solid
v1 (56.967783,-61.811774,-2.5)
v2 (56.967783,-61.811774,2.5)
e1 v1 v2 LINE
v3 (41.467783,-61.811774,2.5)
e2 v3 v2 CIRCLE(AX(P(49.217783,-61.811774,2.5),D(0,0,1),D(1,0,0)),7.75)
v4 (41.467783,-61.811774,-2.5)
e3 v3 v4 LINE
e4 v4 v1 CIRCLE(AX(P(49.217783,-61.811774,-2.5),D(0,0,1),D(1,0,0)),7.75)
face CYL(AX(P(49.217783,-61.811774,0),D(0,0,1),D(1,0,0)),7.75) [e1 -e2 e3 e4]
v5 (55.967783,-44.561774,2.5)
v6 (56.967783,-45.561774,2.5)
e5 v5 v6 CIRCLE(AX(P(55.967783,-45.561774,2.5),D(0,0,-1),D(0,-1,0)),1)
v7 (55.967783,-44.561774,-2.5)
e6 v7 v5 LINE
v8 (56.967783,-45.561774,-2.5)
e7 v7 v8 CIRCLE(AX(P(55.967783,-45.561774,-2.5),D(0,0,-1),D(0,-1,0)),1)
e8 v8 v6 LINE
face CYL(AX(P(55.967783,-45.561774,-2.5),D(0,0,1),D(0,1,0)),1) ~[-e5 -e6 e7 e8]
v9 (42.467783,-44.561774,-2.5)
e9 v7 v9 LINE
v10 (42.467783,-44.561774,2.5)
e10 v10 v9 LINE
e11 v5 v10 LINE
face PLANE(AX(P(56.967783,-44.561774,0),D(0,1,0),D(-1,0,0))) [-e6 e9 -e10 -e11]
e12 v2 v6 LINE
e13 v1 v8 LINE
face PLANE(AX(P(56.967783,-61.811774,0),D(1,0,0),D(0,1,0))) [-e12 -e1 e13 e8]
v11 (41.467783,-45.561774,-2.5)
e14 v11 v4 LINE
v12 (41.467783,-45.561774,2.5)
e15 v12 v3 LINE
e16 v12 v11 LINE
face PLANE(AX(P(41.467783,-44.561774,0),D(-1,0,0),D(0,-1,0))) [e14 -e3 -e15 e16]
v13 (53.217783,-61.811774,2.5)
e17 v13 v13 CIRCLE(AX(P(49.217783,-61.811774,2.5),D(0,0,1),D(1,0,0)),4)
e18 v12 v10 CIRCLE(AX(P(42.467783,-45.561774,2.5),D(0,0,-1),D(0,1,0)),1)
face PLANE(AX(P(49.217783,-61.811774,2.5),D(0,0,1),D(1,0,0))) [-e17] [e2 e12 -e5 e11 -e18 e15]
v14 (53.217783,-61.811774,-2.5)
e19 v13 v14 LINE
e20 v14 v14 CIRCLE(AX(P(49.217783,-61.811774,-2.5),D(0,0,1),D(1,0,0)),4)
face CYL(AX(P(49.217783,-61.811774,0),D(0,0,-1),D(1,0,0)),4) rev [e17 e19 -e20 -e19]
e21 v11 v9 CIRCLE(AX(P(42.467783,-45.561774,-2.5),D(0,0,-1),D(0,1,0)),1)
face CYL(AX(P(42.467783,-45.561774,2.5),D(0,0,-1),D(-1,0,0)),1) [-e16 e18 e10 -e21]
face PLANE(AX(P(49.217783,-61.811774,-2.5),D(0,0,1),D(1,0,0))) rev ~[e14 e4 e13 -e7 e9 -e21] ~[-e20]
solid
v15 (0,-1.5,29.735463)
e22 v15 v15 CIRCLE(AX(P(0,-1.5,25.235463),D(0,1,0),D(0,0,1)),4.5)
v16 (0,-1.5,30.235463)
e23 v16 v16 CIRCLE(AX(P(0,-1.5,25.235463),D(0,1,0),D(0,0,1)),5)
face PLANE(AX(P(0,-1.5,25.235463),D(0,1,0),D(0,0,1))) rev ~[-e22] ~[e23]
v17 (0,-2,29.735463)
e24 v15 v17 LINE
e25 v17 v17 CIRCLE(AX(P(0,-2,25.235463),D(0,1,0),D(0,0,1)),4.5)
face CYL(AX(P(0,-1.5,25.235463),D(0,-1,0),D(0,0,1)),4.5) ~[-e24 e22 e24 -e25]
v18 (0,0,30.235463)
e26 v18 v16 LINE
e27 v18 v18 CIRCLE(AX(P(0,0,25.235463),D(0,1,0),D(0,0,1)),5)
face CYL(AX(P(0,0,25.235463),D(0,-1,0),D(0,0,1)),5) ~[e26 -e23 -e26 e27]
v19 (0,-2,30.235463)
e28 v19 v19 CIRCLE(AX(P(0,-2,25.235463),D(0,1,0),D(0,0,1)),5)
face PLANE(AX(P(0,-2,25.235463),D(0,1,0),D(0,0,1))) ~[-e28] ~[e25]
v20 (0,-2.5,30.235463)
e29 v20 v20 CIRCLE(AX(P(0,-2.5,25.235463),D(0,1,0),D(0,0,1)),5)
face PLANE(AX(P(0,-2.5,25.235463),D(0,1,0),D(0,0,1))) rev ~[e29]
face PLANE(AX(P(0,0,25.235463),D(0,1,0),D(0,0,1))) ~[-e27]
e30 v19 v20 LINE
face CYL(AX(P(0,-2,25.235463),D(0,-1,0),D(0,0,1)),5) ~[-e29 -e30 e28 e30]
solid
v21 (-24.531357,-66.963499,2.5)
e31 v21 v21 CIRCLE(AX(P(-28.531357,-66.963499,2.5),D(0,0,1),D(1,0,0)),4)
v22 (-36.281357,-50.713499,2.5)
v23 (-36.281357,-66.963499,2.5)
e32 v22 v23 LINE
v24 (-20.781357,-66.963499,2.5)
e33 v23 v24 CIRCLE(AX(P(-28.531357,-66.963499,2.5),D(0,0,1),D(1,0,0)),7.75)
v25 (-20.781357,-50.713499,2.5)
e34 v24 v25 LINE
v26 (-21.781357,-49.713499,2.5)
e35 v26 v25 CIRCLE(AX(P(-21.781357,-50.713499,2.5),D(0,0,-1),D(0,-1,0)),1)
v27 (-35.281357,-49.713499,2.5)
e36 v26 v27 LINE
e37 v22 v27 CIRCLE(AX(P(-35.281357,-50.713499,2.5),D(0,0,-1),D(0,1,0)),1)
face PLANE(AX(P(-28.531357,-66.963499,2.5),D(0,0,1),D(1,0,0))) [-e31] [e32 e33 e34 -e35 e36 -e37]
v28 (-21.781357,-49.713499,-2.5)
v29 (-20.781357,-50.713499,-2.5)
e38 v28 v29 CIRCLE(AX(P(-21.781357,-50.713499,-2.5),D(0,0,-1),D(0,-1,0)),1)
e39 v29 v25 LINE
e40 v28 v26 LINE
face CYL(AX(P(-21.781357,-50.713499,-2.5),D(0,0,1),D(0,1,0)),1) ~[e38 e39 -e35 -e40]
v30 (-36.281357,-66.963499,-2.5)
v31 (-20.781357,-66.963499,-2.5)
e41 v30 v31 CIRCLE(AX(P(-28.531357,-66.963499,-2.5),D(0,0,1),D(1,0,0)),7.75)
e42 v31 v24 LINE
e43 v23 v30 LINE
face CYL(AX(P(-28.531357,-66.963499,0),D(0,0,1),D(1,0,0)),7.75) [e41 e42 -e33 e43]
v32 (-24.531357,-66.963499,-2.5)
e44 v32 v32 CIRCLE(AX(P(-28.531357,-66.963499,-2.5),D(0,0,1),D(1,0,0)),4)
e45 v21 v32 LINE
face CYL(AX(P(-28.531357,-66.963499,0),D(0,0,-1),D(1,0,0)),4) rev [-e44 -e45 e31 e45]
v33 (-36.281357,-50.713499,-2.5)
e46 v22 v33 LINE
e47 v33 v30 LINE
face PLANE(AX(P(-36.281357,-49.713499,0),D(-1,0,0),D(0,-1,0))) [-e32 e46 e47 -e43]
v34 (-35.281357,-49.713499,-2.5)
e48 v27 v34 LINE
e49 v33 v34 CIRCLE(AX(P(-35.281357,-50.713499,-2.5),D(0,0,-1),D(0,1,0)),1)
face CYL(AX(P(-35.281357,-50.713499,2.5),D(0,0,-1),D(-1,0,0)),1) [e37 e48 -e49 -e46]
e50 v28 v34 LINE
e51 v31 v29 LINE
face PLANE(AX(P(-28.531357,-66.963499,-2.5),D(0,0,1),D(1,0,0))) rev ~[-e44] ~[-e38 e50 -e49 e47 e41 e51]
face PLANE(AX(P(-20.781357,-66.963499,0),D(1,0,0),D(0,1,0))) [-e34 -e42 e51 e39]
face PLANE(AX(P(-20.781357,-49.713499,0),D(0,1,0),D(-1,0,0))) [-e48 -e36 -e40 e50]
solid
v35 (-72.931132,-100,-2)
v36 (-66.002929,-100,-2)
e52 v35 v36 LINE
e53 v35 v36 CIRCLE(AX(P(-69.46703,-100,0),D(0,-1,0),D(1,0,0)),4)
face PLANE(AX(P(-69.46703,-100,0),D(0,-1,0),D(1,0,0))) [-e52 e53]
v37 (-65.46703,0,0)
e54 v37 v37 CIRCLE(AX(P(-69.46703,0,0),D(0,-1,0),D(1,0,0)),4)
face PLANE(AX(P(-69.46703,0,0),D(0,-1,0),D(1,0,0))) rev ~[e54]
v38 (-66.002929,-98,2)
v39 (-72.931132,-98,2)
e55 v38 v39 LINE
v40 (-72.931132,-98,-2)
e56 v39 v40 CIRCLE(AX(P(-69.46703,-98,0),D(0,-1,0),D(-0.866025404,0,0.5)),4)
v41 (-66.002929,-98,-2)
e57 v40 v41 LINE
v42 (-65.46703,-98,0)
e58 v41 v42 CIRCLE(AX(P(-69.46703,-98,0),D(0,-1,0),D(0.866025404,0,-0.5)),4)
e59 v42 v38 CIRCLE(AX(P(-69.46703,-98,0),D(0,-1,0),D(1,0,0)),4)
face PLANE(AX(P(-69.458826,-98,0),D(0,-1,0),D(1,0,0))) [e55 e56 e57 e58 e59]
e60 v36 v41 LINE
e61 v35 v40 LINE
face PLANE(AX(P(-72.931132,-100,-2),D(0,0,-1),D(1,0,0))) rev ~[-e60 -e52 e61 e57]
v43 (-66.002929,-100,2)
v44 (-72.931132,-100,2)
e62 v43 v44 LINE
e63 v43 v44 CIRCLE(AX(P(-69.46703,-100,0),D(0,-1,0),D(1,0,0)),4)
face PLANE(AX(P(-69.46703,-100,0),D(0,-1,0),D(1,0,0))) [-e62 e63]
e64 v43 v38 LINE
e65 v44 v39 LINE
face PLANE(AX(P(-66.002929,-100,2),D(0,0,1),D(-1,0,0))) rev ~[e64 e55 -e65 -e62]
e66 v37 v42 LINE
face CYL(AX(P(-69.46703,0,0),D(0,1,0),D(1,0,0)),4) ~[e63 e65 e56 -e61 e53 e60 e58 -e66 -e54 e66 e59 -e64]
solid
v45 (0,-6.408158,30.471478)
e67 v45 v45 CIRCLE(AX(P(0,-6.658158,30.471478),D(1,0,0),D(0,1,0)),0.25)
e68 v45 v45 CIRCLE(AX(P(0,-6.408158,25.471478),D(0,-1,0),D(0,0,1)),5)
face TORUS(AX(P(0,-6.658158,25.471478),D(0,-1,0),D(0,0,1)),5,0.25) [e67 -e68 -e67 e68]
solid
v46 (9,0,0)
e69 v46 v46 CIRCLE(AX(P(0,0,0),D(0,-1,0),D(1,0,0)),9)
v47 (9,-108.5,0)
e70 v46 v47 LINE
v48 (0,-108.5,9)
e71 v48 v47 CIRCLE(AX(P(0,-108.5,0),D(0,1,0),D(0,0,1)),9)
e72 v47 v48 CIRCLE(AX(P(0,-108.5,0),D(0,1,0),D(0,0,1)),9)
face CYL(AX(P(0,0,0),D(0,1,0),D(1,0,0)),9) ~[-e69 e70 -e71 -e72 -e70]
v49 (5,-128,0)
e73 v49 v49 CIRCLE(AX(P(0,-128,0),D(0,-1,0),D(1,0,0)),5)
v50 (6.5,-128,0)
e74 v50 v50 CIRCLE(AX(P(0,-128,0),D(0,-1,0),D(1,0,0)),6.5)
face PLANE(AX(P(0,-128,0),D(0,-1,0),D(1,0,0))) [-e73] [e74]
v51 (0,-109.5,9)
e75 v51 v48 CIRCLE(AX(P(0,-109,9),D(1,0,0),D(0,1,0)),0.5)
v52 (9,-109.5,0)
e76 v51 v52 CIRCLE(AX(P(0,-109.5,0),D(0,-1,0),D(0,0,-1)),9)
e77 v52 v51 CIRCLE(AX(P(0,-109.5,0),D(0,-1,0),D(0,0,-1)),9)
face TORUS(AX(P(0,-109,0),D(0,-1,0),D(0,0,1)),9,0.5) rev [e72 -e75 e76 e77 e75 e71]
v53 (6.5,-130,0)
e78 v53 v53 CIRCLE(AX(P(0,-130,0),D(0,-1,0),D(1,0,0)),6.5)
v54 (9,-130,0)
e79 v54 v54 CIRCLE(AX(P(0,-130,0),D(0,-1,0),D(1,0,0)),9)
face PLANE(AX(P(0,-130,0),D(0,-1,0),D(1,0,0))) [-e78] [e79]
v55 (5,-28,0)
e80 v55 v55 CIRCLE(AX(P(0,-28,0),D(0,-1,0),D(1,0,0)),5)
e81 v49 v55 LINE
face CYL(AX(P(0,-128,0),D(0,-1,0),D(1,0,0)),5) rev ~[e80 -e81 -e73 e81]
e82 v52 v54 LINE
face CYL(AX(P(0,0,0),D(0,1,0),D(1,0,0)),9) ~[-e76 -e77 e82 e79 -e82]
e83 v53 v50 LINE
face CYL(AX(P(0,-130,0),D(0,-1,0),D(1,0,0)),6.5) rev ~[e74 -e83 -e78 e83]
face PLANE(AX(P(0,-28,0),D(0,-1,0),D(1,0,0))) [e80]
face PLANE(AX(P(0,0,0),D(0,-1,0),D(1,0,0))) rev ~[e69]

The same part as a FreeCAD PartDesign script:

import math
import FreeCAD as App
import Part
import Sketcher

V = App.Vector
Q = App.Units.Quantity


def edges_at(feature, points):
    """Names of the edges that pass closest to the given points."""
    edges = feature.Shape.Edges
    near = lambda p: min(range(len(edges)), key=lambda i: edges[i].distToShape(Part.Vertex(*p))[0])
    return sorted({f"Edge{near(p) + 1}" for p in points})

doc = App.newDocument("Part")
body = doc.addObject("PartDesign::Body", "Body")

sketch1 = doc.addObject("Sketcher::SketchObject", "Sketch")
body.addObject(sketch1)
sketch1.AttachmentSupport = (doc.XZ_Plane, [""])
sketch1.MapMode = "FlatFace"
sketch1.addGeometry(Part.Circle(V(-69.5, 0, 0), V(0, 0, 1), 4), False)
sketch1.addConstraint([
    Sketcher.Constraint("PointOnObject", 0, 3, -1),
    Sketcher.Constraint("Diameter", 0, Q("8 mm")),
    Sketcher.Constraint("DistanceX", 0, 3, -1, 1, Q("69.46703 mm")),
])
pad1 = doc.addObject("PartDesign::Pad", "Pad")
body.addObject(pad1)
pad1.Profile = sketch1
pad1.Length = 100

sketch2 = doc.addObject("Sketcher::SketchObject", "Sketch001")
body.addObject(sketch2)
sketch2.AttachmentSupport = (doc.XZ_Plane, [""])
sketch2.MapMode = "FlatFace"
sketch2.AttachmentOffset = App.Placement(V(0, 0, 100), App.Rotation())
sketch2.addGeometry([
    Part.LineSegment(V(-66, 2, 0), V(-72.9, 2, 0)),
    Part.ArcOfCircle(Part.Circle(V(-69.5, 0, 0), V(0, 0, 1), 4), math.radians(150), math.radians(210)),
    Part.LineSegment(V(-72.9, -2, 0), V(-66, -2, 0)),
    Part.ArcOfCircle(Part.Circle(V(-69.5, 0, 0), V(0, 0, 1), 4), math.radians(-30), math.radians(0)),
    Part.ArcOfCircle(Part.Circle(V(-69.5, 0, 0), V(0, 0, 1), 4), math.radians(0), math.radians(30)),
], False)
sketch2.addConstraint([
    Sketcher.Constraint("Coincident", 0, 2, 1, 1),
    Sketcher.Constraint("Coincident", 1, 2, 2, 1),
    Sketcher.Constraint("Coincident", 2, 2, 3, 1),
    Sketcher.Constraint("Tangent", 3, 2, 4, 1),
    Sketcher.Constraint("Coincident", 4, 2, 0, 1),
    Sketcher.Constraint("Horizontal", 0),
    Sketcher.Constraint("Horizontal", 2),
    Sketcher.Constraint("Coincident", 3, 3, 1, 3),
    Sketcher.Constraint("Equal", 1, 3),
    Sketcher.Constraint("Equal", 3, 4),
    Sketcher.Constraint("Symmetric", 0, 2, 1, 2, -1),
    Sketcher.Constraint("PointOnObject", 3, 2, -1),
    Sketcher.Constraint("Radius", 1, Q("4 mm")),
    Sketcher.Constraint("DistanceY", -1, 1, 0, 2, Q("2 mm")),
    Sketcher.Constraint("DistanceX", 1, 3, -1, 1, Q("69.46703 mm")),
])
pocket1 = doc.addObject("PartDesign::Pocket", "Pocket")
body.addObject(pocket1)
pocket1.Profile = sketch2
pocket1.Length = 2
body2 = doc.addObject("PartDesign::Body", "Body001")

sketch3 = doc.addObject("Sketcher::SketchObject", "Sketch002")
body2.addObject(sketch3)
sketch3.AttachmentSupport = (doc.getObject("XZ_Plane001"), [""])
sketch3.MapMode = "FlatFace"
sketch3.addGeometry(Part.Circle(V(0, 0, 0), V(0, 0, 1), 9), False)
sketch3.addConstraint([
    Sketcher.Constraint("Coincident", 0, 3, -1, 1),
    Sketcher.Constraint("Diameter", 0, Q("18 mm")),
])
pad2 = doc.addObject("PartDesign::Pad", "Pad001")
body2.addObject(pad2)
pad2.Profile = sketch3
pad2.Length = 130

sketch4 = doc.addObject("Sketcher::SketchObject", "Sketch003")
body2.addObject(sketch4)
sketch4.AttachmentSupport = (doc.getObject("YZ_Plane001"), [""])
sketch4.MapMode = "FlatFace"
sketch4.addGeometry(Part.Circle(V(-109, 9, 0), V(0, 0, 1), 0.5), False)
sketch4.addConstraint([
    Sketcher.Constraint("Diameter", 0, Q("1 mm")),
    Sketcher.Constraint("DistanceX", 0, 3, -1, 1, Q("109 mm")),
    Sketcher.Constraint("DistanceY", -1, 1, 0, 3, Q("9 mm")),
])
groove = doc.addObject("PartDesign::Groove", "Groove")
body2.addObject(groove)
groove.Profile = sketch4
groove.ReferenceAxis = (sketch4, ["H_Axis"])
groove.Angle = 360

sketch5 = doc.addObject("Sketcher::SketchObject", "Sketch004")
body2.addObject(sketch5)
sketch5.AttachmentSupport = (doc.getObject("XZ_Plane001"), [""])
sketch5.MapMode = "FlatFace"
sketch5.AttachmentOffset = App.Placement(V(0, 0, 130), App.Rotation())
sketch5.addGeometry(Part.Circle(V(0, 0, 0), V(0, 0, 1), 6), False)
sketch5.addConstraint([
    Sketcher.Constraint("Coincident", 0, 3, -1, 1),
    Sketcher.Constraint("Diameter", 0, Q("13 mm")),
])
pocket2 = doc.addObject("PartDesign::Pocket", "Pocket001")
body2.addObject(pocket2)
pocket2.Profile = sketch5
pocket2.Length = 2

sketch6 = doc.addObject("Sketcher::SketchObject", "Sketch005")
body2.addObject(sketch6)
sketch6.AttachmentSupport = (doc.getObject("XZ_Plane001"), [""])
sketch6.MapMode = "FlatFace"
sketch6.AttachmentOffset = App.Placement(V(0, 0, 128), App.Rotation())
sketch6.addGeometry(Part.Circle(V(0, 0, 0), V(0, 0, 1), 5), False)
sketch6.addConstraint([
    Sketcher.Constraint("Coincident", 0, 3, -1, 1),
    Sketcher.Constraint("Diameter", 0, Q("10 mm")),
])
pocket3 = doc.addObject("PartDesign::Pocket", "Pocket002")
body2.addObject(pocket3)
pocket3.Profile = sketch6
pocket3.Length = 100
body3 = doc.addObject("PartDesign::Body", "Body002")

sketch7 = doc.addObject("Sketcher::SketchObject", "Sketch006")
body3.addObject(sketch7)
sketch7.AttachmentSupport = (doc.getObject("XY_Plane002"), [""])
sketch7.MapMode = "FlatFace"
sketch7.addGeometry([
    Part.ArcOfCircle(Part.Circle(V(-28.5, -67, 0), V(0, 0, 1), 7.8), math.radians(180), math.radians(360)),
    Part.LineSegment(V(-20.8, -67, 0), V(-20.8, -49.7, 0)),
    Part.LineSegment(V(-20.8, -49.7, 0), V(-36.3, -49.7, 0)),
    Part.LineSegment(V(-36.3, -49.7, 0), V(-36.3, -67, 0)),
    Part.Circle(V(-28.5, -67, 0), V(0, 0, 1), 4),
], False)
sketch7.addConstraint([
    Sketcher.Constraint("Tangent", 0, 2, 1, 1),
    Sketcher.Constraint("Coincident", 1, 2, 2, 1),
    Sketcher.Constraint("Coincident", 2, 2, 3, 1),
    Sketcher.Constraint("Tangent", 3, 2, 0, 1),
    Sketcher.Constraint("Vertical", 1),
    Sketcher.Constraint("Horizontal", 2),
    Sketcher.Constraint("Vertical", 3),
    Sketcher.Constraint("Coincident", 4, 3, 0, 3),
    Sketcher.Constraint("Diameter", 4, Q("8 mm")),
    Sketcher.Constraint("Radius", 0, Q("7.75 mm")),
    Sketcher.Constraint("DistanceY", 1, 1, 1, 2, Q("17.25 mm")),
    Sketcher.Constraint("DistanceY", 0, 3, -1, 1, Q("66.963499 mm")),
    Sketcher.Constraint("DistanceX", 0, 3, -1, 1, Q("28.531357 mm")),
])
pad3 = doc.addObject("PartDesign::Pad", "Pad002")
body3.addObject(pad3)
pad3.Profile = sketch7
pad3.Length = 5
pad3.Midplane = True
doc.recompute()

fillet = doc.addObject("PartDesign::Fillet", "Fillet")
body3.addObject(fillet)
fillet.Base = (pad3, edges_at(pad3, [(-20.781, -49.713, 0), (-36.281, -49.713, 0)]))
fillet.Radius = 1
body4 = doc.addObject("PartDesign::Body", "Body003")

sketch8 = doc.addObject("Sketcher::SketchObject", "Sketch007")
body4.addObject(sketch8)
sketch8.AttachmentSupport = (doc.getObject("XY_Plane003"), [""])
sketch8.MapMode = "FlatFace"
sketch8.addGeometry([
    Part.ArcOfCircle(Part.Circle(V(49.2, -61.8, 0), V(0, 0, 1), 7.8), math.radians(180), math.radians(360)),
    Part.LineSegment(V(57, -61.8, 0), V(57, -44.6, 0)),
    Part.LineSegment(V(57, -44.6, 0), V(41.5, -44.6, 0)),
    Part.LineSegment(V(41.5, -44.6, 0), V(41.5, -61.8, 0)),
    Part.Circle(V(49.2, -61.8, 0), V(0, 0, 1), 4),
], False)
sketch8.addConstraint([
    Sketcher.Constraint("Tangent", 0, 2, 1, 1),
    Sketcher.Constraint("Coincident", 1, 2, 2, 1),
    Sketcher.Constraint("Coincident", 2, 2, 3, 1),
    Sketcher.Constraint("Tangent", 3, 2, 0, 1),
    Sketcher.Constraint("Vertical", 1),
    Sketcher.Constraint("Horizontal", 2),
    Sketcher.Constraint("Vertical", 3),
    Sketcher.Constraint("Coincident", 4, 3, 0, 3),
    Sketcher.Constraint("Diameter", 4, Q("8 mm")),
    Sketcher.Constraint("Radius", 0, Q("7.75 mm")),
    Sketcher.Constraint("DistanceY", 1, 1, 1, 2, Q("17.25 mm")),
    Sketcher.Constraint("DistanceX", -1, 1, 0, 3, Q("49.217783 mm")),
    Sketcher.Constraint("DistanceY", 0, 3, -1, 1, Q("61.811774 mm")),
])
pad4 = doc.addObject("PartDesign::Pad", "Pad003")
body4.addObject(pad4)
pad4.Profile = sketch8
pad4.Length = 5
pad4.Midplane = True
doc.recompute()

fillet2 = doc.addObject("PartDesign::Fillet", "Fillet001")
body4.addObject(fillet2)
fillet2.Base = (pad4, edges_at(pad4, [(41.468, -44.562, 0), (56.968, -44.562, 0)]))
fillet2.Radius = 1
body5 = doc.addObject("PartDesign::Body", "Body004")

sketch9 = doc.addObject("Sketcher::SketchObject", "Sketch008")
body5.addObject(sketch9)
sketch9.AttachmentSupport = (doc.getObject("YZ_Plane004"), [""])
sketch9.MapMode = "FlatFace"
sketch9.addGeometry([
    Part.LineSegment(V(-2.5, 25.2, 0), V(0, 25.2, 0)),
    Part.LineSegment(V(0, 25.2, 0), V(0, 30.2, 0)),
    Part.LineSegment(V(0, 30.2, 0), V(-1.5, 30.2, 0)),
    Part.LineSegment(V(-1.5, 30.2, 0), V(-1.5, 29.7, 0)),
    Part.LineSegment(V(-1.5, 29.7, 0), V(-2, 29.7, 0)),
    Part.LineSegment(V(-2, 29.7, 0), V(-2, 30.2, 0)),
    Part.LineSegment(V(-2, 30.2, 0), V(-2.5, 30.2, 0)),
    Part.LineSegment(V(-2.5, 30.2, 0), V(-2.5, 25.2, 0)),
], False)
sketch9.addGeometry(Part.LineSegment(V(-2.5, 25.2, 0), V(0, 25.2, 0)), True)
sketch9.addConstraint([
    Sketcher.Constraint("Coincident", 0, 2, 1, 1),
    Sketcher.Constraint("Coincident", 1, 2, 2, 1),
    Sketcher.Constraint("Coincident", 2, 2, 3, 1),
    Sketcher.Constraint("Coincident", 3, 2, 4, 1),
    Sketcher.Constraint("Coincident", 4, 2, 5, 1),
    Sketcher.Constraint("Coincident", 5, 2, 6, 1),
    Sketcher.Constraint("Coincident", 6, 2, 7, 1),
    Sketcher.Constraint("Coincident", 7, 2, 0, 1),
    Sketcher.Constraint("Horizontal", 0),
    Sketcher.Constraint("Vertical", 1),
    Sketcher.Constraint("Horizontal", 2),
    Sketcher.Constraint("Vertical", 3),
    Sketcher.Constraint("Horizontal", 4),
    Sketcher.Constraint("Vertical", 5),
    Sketcher.Constraint("Horizontal", 6),
    Sketcher.Constraint("Vertical", 7),
    Sketcher.Constraint("Horizontal", 8),
    Sketcher.Constraint("Coincident", 8, 1, 7, 2),
    Sketcher.Constraint("PointOnObject", 0, 2, -2),
    Sketcher.Constraint("PointOnObject", 8, 2, -2),
    Sketcher.Constraint("Horizontal", 2, 2, 5, 2),
    Sketcher.Constraint("Equal", 4, 6),
    Sketcher.Constraint("Equal", 6, 3),
    Sketcher.Constraint("DistanceY", 1, 1, 1, 2, Q("5 mm")),
    Sketcher.Constraint("DistanceX", 0, 1, 0, 2, Q("2.5 mm")),
    Sketcher.Constraint("DistanceX", 2, 2, 2, 1, Q("1.5 mm")),
    Sketcher.Constraint("DistanceY", -1, 1, 0, 2, Q("25.235463 mm")),
])
revolution = doc.addObject("PartDesign::Revolution", "Revolution")
body5.addObject(revolution)
revolution.Profile = sketch9
revolution.ReferenceAxis = (sketch9, ["Axis0"])
revolution.Angle = 360
body6 = doc.addObject("PartDesign::Body", "Body005")

sketch10 = doc.addObject("Sketcher::SketchObject", "Sketch009")
body6.addObject(sketch10)
sketch10.AttachmentSupport = (doc.getObject("YZ_Plane005"), [""])
sketch10.MapMode = "FlatFace"
sketch10.addGeometry(Part.Circle(V(-6.66, 30.47, 0), V(0, 0, 1), 0.25), False)
sketch10.addGeometry(Part.LineSegment(V(-6.66, 25.47, 0), V(-16.66, 25.47, 0)), True)
sketch10.addConstraint([
    Sketcher.Constraint("Horizontal", 1),
    Sketcher.Constraint("Vertical", 0, 3, 1, 1),
    Sketcher.Constraint("Diameter", 0, Q("0.5 mm")),
    Sketcher.Constraint("DistanceX", 1, 2, 1, 1, Q("10 mm")),
    Sketcher.Constraint("DistanceY", 1, 1, 0, 3, Q("5 mm")),
    Sketcher.Constraint("DistanceX", 0, 3, -1, 1, Q("6.658158 mm")),
    Sketcher.Constraint("DistanceY", -1, 1, 0, 3, Q("30.471478 mm")),
])
revolution2 = doc.addObject("PartDesign::Revolution", "Revolution001")
body6.addObject(revolution2)
revolution2.Profile = sketch10
revolution2.ReferenceAxis = (sketch10, ["Axis0"])
revolution2.Angle = 360

doc.recompute()
